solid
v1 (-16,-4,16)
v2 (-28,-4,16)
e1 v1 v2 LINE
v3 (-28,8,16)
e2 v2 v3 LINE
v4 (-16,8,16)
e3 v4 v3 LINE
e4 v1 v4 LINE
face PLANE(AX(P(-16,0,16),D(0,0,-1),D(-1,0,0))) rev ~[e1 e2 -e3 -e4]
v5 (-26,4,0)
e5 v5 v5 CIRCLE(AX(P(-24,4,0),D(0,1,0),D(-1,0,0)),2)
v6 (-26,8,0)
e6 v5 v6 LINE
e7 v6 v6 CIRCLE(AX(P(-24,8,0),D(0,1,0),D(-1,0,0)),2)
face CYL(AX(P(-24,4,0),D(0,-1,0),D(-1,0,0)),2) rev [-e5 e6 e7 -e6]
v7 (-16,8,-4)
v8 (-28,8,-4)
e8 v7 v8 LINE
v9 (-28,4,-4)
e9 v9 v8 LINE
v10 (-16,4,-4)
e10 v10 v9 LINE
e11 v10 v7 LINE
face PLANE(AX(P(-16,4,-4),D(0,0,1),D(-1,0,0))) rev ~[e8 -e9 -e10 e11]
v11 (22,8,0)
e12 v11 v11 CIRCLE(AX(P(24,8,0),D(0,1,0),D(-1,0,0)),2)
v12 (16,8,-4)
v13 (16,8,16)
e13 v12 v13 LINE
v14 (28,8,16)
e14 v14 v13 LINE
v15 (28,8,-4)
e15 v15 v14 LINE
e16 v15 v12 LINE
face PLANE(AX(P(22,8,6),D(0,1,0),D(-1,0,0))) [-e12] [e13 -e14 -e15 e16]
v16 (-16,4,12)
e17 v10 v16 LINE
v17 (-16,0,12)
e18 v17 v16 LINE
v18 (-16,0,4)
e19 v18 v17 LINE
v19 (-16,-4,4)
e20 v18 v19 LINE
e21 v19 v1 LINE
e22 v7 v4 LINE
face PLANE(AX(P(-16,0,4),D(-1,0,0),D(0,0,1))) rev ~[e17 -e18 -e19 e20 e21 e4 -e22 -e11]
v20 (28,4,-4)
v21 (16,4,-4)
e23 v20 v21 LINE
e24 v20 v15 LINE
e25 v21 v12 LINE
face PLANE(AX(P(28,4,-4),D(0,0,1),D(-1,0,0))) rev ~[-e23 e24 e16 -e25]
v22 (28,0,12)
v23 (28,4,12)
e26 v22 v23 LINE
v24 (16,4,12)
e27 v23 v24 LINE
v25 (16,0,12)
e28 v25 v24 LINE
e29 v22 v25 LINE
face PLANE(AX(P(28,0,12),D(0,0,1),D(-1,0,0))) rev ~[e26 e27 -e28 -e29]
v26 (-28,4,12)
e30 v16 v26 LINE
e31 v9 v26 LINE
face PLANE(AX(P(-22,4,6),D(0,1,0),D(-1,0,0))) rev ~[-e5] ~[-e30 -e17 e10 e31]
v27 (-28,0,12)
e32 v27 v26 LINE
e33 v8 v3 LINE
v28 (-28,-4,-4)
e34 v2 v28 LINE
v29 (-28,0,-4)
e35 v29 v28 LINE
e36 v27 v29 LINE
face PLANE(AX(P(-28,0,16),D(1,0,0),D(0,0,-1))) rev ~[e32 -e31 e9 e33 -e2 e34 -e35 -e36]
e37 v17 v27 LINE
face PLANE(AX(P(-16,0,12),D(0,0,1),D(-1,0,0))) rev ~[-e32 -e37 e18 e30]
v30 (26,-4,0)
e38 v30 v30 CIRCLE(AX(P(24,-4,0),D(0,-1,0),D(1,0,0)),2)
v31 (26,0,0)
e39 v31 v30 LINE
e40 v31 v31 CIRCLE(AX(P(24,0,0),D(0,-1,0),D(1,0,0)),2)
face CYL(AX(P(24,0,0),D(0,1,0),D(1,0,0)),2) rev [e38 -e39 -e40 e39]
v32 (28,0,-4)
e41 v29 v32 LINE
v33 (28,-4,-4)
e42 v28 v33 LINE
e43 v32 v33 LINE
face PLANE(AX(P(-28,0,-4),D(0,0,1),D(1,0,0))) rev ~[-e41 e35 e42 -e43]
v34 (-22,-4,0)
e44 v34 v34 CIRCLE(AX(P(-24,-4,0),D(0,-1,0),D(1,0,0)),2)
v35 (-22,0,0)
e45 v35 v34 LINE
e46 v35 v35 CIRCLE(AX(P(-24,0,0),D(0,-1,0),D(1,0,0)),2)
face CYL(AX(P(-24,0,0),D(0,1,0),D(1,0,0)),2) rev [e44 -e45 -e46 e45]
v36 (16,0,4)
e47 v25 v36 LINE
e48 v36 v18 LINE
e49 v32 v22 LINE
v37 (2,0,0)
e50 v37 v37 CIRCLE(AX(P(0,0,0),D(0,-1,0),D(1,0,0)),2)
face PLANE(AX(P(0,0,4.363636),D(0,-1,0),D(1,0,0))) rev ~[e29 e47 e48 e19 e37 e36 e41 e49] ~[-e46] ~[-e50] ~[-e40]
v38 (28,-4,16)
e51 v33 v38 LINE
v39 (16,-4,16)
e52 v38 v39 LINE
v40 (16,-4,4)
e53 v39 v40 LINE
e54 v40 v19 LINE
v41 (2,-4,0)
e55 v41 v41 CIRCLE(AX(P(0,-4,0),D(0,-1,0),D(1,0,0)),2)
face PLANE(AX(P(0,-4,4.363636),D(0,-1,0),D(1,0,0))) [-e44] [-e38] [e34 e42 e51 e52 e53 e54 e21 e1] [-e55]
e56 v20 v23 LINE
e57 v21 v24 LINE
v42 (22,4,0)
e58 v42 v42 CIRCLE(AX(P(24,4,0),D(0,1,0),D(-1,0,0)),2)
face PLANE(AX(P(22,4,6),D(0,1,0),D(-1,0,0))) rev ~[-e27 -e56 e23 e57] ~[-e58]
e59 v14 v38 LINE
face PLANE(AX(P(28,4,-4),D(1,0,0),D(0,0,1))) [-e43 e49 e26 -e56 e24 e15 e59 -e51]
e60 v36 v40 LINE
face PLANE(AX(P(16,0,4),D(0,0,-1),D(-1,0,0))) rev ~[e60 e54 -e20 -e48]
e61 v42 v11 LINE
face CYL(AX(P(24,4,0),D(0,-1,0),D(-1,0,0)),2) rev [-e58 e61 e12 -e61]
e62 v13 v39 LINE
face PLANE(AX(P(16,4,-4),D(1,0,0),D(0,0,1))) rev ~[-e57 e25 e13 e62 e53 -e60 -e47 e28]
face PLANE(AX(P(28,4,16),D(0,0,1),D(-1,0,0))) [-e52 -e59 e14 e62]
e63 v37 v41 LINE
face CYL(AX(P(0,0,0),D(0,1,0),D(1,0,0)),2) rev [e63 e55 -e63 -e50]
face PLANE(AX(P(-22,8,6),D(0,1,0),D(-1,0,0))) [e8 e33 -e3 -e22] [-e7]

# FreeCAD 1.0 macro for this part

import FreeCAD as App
import Part
import Sketcher
from FreeCAD import Vector
Q = App.Units.Quantity


def add_polygon(sketch, points):
    """Adds a closed chain of lines whose ends are joined by coincident constraints."""
    first, n = sketch.GeometryCount, len(points)
    for a, b in zip(points, points[1:] + points[:1]):
        sketch.addGeometry(Part.LineSegment(App.Vector(*a, 0), App.Vector(*b, 0)), False)
    for i in range(n):
        sketch.addConstraint(Sketcher.Constraint("Coincident", first + i, 2, first + (i + 1) % n, 1))

doc = App.newDocument("Part")
body = doc.addObject("PartDesign::Body", "Body")

# Sketch on XZ plane
sketch1 = doc.addObject("Sketcher::SketchObject", "Sketch")
body.addObject(sketch1)
sketch1.AttachmentSupport = (doc.XZ_Plane, [""])
sketch1.MapMode = "FlatFace"
add_polygon(sketch1, [(-28, -4), (28, -4), (28, 16), (16, 16), (16, 4), (-16, 4), (-16, 16), (-28, 16)])  # lines 0-7
sketch1.addGeometry(Part.Circle(Vector(-24, 0, 0), Vector(0, 0, 1), 2), False)  # 8
sketch1.addGeometry(Part.Circle(Vector(0, 0, 0), Vector(0, 0, 1), 2), False)  # 9
sketch1.addGeometry(Part.Circle(Vector(24, 0, 0), Vector(0, 0, 1), 2), False)  # 10
sketch1.addConstraint([
    Sketcher.Constraint("Horizontal", 0),
    Sketcher.Constraint("Vertical", 1),
    Sketcher.Constraint("Horizontal", 2),
    Sketcher.Constraint("Vertical", 3),
    Sketcher.Constraint("Horizontal", 4),
    Sketcher.Constraint("Vertical", 5),
    Sketcher.Constraint("Horizontal", 6),
    Sketcher.Constraint("Vertical", 7),
    Sketcher.Constraint("Coincident", 9, 3, -1, 1),
    Sketcher.Constraint("Equal", 8, 9),
    Sketcher.Constraint("Equal", 9, 10),
    Sketcher.Constraint("Symmetric", 8, 3, 10, 3, -1, 1),
    Sketcher.Constraint("Symmetric", 2, 2, 5, 2, -2),
    Sketcher.Constraint("PointOnObject", 8, 3, -1),
    Sketcher.Constraint("Equal", 2, 6),
    Sketcher.Constraint("Equal", 6, 3),
    Sketcher.Constraint("Diameter", 8, Q("4 mm")),
    Sketcher.Constraint("DistanceX", 0, 1, 0, 2, Q("56 mm")),
    Sketcher.Constraint("DistanceX", 2, 2, 2, 1, Q("12 mm")),
    Sketcher.Constraint("DistanceY", 1, 1, 1, 2, Q("20 mm")),
    Sketcher.Constraint("DistanceX", 8, 3, -1, 1, Q("24 mm")),
    Sketcher.Constraint("DistanceY", 0, 2, -1, 1, Q("4 mm")),
])
pad1 = doc.addObject("PartDesign::Pad", "Pad")
body.addObject(pad1)
pad1.Profile = sketch1
pad1.Length = 4

# Sketch on XZ plane
sketch2 = doc.addObject("Sketcher::SketchObject", "Sketch001")
body.addObject(sketch2)
sketch2.AttachmentSupport = (doc.XZ_Plane, [""])
sketch2.MapMode = "FlatFace"
add_polygon(sketch2, [(28, 16), (28, 12), (16, 12), (16, 16)])  # lines 0-3
add_polygon(sketch2, [(-16, 16), (-16, 12), (-28, 12), (-28, 16)])  # lines 4-7
sketch2.addConstraint([
    Sketcher.Constraint("Vertical", 0),
    Sketcher.Constraint("Horizontal", 1),
    Sketcher.Constraint("Vertical", 2),
    Sketcher.Constraint("Horizontal", 3),
    Sketcher.Constraint("Vertical", 4),
    Sketcher.Constraint("Horizontal", 5),
    Sketcher.Constraint("Vertical", 6),
    Sketcher.Constraint("Horizontal", 7),
    Sketcher.Constraint("Symmetric", 1, 2, 4, 2, -2),
    Sketcher.Constraint("Symmetric", 3, 2, 6, 2, -2),
    Sketcher.Constraint("DistanceX", 1, 2, 1, 1, Q("12 mm")),
    Sketcher.Constraint("DistanceY", 0, 2, 0, 1, Q("4 mm")),
    Sketcher.Constraint("DistanceX", -1, 1, 0, 2, Q("28 mm")),
    Sketcher.Constraint("DistanceY", -1, 1, 0, 2, Q("12 mm")),
])
pad2 = doc.addObject("PartDesign::Pad", "Pad001")
body.addObject(pad2)
pad2.Profile = sketch2
pad2.Length = 4
pad2.Reversed = True

# Sketch on XZ plane
sketch3 = doc.addObject("Sketcher::SketchObject", "Sketch002")
body.addObject(sketch3)
sketch3.AttachmentSupport = (doc.XZ_Plane, [""])
sketch3.MapMode = "FlatFace"
sketch3.AttachmentOffset = App.Placement(Vector(0, 0, -4), App.Rotation())
add_polygon(sketch3, [(28, 16), (28, -4), (16, -4), (16, 16)])  # lines 0-3
sketch3.addGeometry(Part.Circle(Vector(24, 0, 0), Vector(0, 0, 1), 2), False)  # 4
add_polygon(sketch3, [(-16, 16), (-16, -4), (-28, -4), (-28, 16)])  # lines 5-8
sketch3.addGeometry(Part.Circle(Vector(-24, 0, 0), Vector(0, 0, 1), 2), False)  # 9
sketch3.addConstraint([
    Sketcher.Constraint("Vertical", 0),
    Sketcher.Constraint("Horizontal", 1),
    Sketcher.Constraint("Vertical", 2),
    Sketcher.Constraint("Horizontal", 3),
    Sketcher.Constraint("Vertical", 5),
    Sketcher.Constraint("Horizontal", 6),
    Sketcher.Constraint("Vertical", 7),
    Sketcher.Constraint("Horizontal", 8),
    Sketcher.Constraint("Equal", 4, 9),
    Sketcher.Constraint("Symmetric", 4, 3, 9, 3, -1, 1),
    Sketcher.Constraint("Symmetric", 1, 2, 5, 2, -2),
    Sketcher.Constraint("Symmetric", 3, 2, 7, 2, -2),
    Sketcher.Constraint("PointOnObject", 4, 3, -1),
    Sketcher.Constraint("Diameter", 4, Q("4 mm")),
    Sketcher.Constraint("DistanceX", 1, 2, 1, 1, Q("12 mm")),
    Sketcher.Constraint("DistanceY", 0, 2, 0, 1, Q("20 mm")),
    Sketcher.Constraint("DistanceX", -1, 1, 4, 3, Q("24 mm")),
    Sketcher.Constraint("DistanceX", -1, 1, 0, 2, Q("28 mm")),
    Sketcher.Constraint("DistanceY", 0, 2, -1, 1, Q("4 mm")),
])
pad3 = doc.addObject("PartDesign::Pad", "Pad002")
body.addObject(pad3)
pad3.Profile = sketch3
pad3.Length = 4
pad3.Reversed = True

doc.recompute()
